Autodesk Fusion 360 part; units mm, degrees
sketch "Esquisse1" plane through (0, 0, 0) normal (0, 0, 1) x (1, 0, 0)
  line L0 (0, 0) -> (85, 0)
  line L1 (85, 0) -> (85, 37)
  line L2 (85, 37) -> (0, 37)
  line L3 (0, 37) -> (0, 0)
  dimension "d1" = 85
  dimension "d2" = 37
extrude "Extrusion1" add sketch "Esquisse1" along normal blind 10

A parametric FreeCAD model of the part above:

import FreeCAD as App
import Part
import Sketcher


def add_polygon(sketch, points):
    """Adds a closed chain of lines whose ends are joined by coincident constraints."""
    first, n = sketch.GeometryCount, len(points)
    for a, b in zip(points, points[1:] + points[:1]):
        sketch.addGeometry(Part.LineSegment(App.Vector(*a, 0), App.Vector(*b, 0)), False)
    for i in range(n):
        sketch.addConstraint(Sketcher.Constraint("Coincident", first + i, 2, first + (i + 1) % n, 1))

doc = App.newDocument("Part")
body = doc.addObject("PartDesign::Body", "Body")

sketch1 = body.newObject("Sketcher::SketchObject", "Sketch")
sketch1.AttachmentSupport = (doc.getObject("XY_Plane"), [""])
sketch1.MapMode = "FlatFace"
add_polygon(sketch1, [(0, 37), (0, 0), (85, 0), (85, 37)])
sketch1.addConstraint([
    Sketcher.Constraint("Vertical", 0),
    Sketcher.Constraint("Horizontal", 1),
    Sketcher.Constraint("Vertical", 2),
    Sketcher.Constraint("Horizontal", 3),
    Sketcher.Constraint("Coincident", 0, 2, -1, 1),
    Sketcher.Constraint("DistanceX", 1, 1, 1, 2, 85.0),
    Sketcher.Constraint("DistanceY", 0, 2, 0, 1, 37.0),
])
pad1 = body.newObject("PartDesign::Pad", "Pad")
pad1.Profile = sketch1
pad1.Length = 10

doc.recompute()
